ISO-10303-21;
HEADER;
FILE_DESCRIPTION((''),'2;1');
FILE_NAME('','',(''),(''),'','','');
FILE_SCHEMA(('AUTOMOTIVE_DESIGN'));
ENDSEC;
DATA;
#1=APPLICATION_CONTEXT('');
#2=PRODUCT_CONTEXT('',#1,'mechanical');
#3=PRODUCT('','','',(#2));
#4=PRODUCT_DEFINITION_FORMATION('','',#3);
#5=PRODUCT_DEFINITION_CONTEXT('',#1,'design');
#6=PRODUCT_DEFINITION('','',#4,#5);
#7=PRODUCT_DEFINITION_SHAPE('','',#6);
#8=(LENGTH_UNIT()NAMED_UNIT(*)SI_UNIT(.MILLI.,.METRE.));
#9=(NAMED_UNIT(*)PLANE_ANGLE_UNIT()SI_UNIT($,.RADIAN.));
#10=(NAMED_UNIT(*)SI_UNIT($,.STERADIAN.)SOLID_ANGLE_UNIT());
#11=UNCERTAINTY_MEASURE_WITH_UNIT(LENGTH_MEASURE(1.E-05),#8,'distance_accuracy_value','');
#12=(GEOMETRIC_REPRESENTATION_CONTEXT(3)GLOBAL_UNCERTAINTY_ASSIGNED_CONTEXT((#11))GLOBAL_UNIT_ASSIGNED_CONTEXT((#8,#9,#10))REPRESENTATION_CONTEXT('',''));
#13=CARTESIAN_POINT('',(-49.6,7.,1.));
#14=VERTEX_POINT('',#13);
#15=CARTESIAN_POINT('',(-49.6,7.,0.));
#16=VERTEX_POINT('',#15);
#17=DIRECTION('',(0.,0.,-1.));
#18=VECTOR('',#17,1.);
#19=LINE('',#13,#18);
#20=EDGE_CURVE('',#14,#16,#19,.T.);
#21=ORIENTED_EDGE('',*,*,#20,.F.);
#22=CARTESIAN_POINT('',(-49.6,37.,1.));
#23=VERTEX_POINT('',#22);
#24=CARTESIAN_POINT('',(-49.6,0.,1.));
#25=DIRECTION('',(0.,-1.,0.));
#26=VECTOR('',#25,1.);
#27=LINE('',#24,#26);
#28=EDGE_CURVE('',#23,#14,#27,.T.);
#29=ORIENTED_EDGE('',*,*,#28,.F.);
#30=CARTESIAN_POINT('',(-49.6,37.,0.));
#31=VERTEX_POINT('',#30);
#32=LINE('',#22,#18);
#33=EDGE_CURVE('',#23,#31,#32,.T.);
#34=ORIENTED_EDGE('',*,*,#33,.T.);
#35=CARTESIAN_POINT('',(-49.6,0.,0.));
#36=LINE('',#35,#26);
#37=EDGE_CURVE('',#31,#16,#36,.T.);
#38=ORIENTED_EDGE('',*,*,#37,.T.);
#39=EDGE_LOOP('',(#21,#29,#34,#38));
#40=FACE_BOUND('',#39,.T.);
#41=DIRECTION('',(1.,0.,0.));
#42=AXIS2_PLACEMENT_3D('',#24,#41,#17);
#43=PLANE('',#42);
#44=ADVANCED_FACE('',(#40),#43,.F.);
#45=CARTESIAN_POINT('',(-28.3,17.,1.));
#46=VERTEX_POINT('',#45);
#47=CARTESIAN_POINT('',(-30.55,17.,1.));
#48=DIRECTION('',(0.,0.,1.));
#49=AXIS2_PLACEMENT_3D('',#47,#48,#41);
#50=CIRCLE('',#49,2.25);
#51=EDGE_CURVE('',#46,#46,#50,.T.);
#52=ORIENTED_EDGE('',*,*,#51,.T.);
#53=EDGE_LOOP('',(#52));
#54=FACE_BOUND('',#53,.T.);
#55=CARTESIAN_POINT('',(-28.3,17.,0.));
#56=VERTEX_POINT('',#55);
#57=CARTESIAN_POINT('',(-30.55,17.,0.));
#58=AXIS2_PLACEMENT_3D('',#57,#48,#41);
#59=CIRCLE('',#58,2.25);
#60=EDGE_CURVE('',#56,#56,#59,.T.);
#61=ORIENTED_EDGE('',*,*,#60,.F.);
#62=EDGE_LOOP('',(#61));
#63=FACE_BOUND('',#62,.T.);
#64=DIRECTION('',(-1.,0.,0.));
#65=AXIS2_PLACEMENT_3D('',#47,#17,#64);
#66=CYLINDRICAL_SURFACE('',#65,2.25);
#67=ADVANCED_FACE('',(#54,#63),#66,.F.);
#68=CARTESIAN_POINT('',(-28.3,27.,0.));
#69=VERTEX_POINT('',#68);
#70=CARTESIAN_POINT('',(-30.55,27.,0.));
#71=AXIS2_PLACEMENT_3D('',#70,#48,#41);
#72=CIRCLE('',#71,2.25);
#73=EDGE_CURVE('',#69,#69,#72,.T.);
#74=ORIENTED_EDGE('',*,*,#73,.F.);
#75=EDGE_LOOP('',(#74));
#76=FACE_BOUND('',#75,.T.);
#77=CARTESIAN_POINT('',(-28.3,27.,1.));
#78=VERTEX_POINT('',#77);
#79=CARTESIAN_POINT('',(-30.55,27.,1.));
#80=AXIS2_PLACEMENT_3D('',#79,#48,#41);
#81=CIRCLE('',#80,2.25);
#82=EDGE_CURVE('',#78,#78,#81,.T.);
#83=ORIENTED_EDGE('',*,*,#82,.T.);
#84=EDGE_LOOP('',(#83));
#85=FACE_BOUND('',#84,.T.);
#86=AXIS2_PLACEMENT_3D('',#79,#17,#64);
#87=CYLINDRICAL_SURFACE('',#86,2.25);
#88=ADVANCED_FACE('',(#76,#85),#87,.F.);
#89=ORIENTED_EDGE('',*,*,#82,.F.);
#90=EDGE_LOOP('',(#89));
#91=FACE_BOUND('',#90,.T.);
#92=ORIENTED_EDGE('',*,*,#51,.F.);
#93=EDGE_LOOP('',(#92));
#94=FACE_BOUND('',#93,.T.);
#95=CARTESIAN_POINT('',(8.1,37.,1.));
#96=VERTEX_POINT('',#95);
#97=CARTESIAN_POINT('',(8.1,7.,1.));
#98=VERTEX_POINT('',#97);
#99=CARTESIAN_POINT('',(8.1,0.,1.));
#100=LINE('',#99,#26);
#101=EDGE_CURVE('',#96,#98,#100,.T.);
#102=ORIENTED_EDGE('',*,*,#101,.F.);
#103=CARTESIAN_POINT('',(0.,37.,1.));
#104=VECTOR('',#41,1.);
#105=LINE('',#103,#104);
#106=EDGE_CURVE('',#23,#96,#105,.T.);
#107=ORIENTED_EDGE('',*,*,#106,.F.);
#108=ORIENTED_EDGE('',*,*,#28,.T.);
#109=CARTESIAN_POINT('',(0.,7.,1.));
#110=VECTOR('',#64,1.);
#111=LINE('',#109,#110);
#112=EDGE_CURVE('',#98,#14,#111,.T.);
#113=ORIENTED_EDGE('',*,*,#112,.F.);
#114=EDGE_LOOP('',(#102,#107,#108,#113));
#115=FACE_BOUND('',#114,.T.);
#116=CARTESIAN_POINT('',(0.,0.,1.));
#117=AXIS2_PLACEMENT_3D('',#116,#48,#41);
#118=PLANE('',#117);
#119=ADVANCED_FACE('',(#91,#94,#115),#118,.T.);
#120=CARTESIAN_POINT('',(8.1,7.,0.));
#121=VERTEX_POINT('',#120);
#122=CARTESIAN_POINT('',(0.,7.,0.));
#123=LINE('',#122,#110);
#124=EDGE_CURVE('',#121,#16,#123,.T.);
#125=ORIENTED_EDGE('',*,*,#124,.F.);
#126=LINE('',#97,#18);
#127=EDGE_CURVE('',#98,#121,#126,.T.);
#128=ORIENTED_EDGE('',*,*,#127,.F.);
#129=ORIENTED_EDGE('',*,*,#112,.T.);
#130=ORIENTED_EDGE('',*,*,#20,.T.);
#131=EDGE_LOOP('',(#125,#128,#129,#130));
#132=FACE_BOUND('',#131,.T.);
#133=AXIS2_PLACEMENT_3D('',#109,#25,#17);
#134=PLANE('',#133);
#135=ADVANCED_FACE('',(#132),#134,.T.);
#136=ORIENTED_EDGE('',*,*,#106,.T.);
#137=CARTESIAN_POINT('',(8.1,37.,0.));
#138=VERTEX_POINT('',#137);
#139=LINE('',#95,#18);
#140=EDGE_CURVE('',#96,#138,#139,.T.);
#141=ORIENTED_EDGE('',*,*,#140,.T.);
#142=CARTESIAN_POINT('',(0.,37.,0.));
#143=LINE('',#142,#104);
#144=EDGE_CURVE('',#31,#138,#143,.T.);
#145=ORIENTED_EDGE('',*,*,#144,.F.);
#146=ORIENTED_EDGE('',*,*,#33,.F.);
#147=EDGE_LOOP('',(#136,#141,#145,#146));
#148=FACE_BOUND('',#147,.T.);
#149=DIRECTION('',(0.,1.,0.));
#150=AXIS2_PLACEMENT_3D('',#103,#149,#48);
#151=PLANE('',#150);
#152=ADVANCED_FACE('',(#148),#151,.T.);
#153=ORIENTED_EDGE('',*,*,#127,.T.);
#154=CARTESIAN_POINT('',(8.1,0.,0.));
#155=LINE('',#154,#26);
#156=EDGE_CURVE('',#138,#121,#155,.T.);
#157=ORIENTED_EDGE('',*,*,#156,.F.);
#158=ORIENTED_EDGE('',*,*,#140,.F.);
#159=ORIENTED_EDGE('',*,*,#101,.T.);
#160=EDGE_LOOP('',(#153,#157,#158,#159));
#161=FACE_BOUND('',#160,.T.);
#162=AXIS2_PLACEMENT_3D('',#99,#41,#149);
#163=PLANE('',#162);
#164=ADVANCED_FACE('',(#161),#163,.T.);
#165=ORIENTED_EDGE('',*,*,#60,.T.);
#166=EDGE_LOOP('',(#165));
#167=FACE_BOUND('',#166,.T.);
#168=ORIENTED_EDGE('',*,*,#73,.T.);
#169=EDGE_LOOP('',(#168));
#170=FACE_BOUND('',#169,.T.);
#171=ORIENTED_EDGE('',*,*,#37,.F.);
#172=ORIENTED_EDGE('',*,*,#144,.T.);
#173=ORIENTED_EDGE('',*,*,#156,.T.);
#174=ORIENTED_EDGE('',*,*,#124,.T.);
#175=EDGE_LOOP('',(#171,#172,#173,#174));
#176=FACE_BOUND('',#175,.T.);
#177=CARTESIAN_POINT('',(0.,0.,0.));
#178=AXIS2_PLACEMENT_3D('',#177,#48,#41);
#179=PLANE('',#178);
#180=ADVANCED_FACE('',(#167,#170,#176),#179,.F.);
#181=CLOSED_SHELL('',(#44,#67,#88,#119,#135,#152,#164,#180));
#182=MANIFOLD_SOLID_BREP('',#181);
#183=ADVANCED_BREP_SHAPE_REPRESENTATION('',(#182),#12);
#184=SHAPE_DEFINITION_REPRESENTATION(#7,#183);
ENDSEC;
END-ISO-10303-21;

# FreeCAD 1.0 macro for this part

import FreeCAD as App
import Part
import Sketcher

V = App.Vector
Q = App.Units.Quantity


def add_polygon(sketch, points):
    """Adds a closed chain of lines whose ends are joined by coincident constraints."""
    first, n = sketch.GeometryCount, len(points)
    for a, b in zip(points, points[1:] + points[:1]):
        sketch.addGeometry(Part.LineSegment(App.Vector(*a, 0), App.Vector(*b, 0)), False)
    for i in range(n):
        sketch.addConstraint(Sketcher.Constraint("Coincident", first + i, 2, first + (i + 1) % n, 1))

doc = App.newDocument("Part")
body = doc.addObject("PartDesign::Body", "Body")

# Sketch on XY plane
sketch1 = body.newObject("Sketcher::SketchObject", "Sketch")
sketch1.AttachmentSupport = (doc.getObject("XY_Plane"), [""])
sketch1.MapMode = "FlatFace"
add_polygon(sketch1, [(-49.6, 37), (-49.6, 7), (8.1, 7), (8.1, 37)])  # lines 0-3
sketch1.addGeometry(Part.Circle(V(-30.6, 17, 0), V(0, 0, 1), 2.2), False)  # 4
sketch1.addGeometry(Part.Circle(V(-30.6, 27, 0), V(0, 0, 1), 2.2), False)  # 5
sketch1.addConstraint(Sketcher.Constraint("Vertical", 0))
sketch1.addConstraint(Sketcher.Constraint("Horizontal", 1))
sketch1.addConstraint(Sketcher.Constraint("Vertical", 2))
sketch1.addConstraint(Sketcher.Constraint("Horizontal", 3))
sketch1.addConstraint(Sketcher.Constraint("Equal", 4, 5))
sketch1.addConstraint(Sketcher.Constraint("Vertical", 4, 3, 5, 3))
sketch1.addConstraint(Sketcher.Constraint("Diameter", 4, Q("4.5 mm")))
sketch1.addConstraint(Sketcher.Constraint("DistanceY", 0, 2, 0, 1, Q("30 mm")))
sketch1.addConstraint(Sketcher.Constraint("DistanceX", 1, 1, 1, 2, Q("57.7 mm")))
sketch1.addConstraint(Sketcher.Constraint("DistanceY", -1, 1, 4, 3, Q("17 mm")))
sketch1.addConstraint(Sketcher.Constraint("DistanceY", -1, 1, 5, 3, Q("27 mm")))
sketch1.addConstraint(Sketcher.Constraint("DistanceY", -1, 1, 0, 2, Q("7 mm")))
sketch1.addConstraint(Sketcher.Constraint("DistanceX", 0, 2, -1, 1, Q("49.6 mm")))
sketch1.addConstraint(Sketcher.Constraint("DistanceX", 4, 3, -1, 1, Q("30.55 mm")))
pad1 = body.newObject("PartDesign::Pad", "Pad")
pad1.Profile = sketch1
pad1.Length = 1

doc.recompute()
